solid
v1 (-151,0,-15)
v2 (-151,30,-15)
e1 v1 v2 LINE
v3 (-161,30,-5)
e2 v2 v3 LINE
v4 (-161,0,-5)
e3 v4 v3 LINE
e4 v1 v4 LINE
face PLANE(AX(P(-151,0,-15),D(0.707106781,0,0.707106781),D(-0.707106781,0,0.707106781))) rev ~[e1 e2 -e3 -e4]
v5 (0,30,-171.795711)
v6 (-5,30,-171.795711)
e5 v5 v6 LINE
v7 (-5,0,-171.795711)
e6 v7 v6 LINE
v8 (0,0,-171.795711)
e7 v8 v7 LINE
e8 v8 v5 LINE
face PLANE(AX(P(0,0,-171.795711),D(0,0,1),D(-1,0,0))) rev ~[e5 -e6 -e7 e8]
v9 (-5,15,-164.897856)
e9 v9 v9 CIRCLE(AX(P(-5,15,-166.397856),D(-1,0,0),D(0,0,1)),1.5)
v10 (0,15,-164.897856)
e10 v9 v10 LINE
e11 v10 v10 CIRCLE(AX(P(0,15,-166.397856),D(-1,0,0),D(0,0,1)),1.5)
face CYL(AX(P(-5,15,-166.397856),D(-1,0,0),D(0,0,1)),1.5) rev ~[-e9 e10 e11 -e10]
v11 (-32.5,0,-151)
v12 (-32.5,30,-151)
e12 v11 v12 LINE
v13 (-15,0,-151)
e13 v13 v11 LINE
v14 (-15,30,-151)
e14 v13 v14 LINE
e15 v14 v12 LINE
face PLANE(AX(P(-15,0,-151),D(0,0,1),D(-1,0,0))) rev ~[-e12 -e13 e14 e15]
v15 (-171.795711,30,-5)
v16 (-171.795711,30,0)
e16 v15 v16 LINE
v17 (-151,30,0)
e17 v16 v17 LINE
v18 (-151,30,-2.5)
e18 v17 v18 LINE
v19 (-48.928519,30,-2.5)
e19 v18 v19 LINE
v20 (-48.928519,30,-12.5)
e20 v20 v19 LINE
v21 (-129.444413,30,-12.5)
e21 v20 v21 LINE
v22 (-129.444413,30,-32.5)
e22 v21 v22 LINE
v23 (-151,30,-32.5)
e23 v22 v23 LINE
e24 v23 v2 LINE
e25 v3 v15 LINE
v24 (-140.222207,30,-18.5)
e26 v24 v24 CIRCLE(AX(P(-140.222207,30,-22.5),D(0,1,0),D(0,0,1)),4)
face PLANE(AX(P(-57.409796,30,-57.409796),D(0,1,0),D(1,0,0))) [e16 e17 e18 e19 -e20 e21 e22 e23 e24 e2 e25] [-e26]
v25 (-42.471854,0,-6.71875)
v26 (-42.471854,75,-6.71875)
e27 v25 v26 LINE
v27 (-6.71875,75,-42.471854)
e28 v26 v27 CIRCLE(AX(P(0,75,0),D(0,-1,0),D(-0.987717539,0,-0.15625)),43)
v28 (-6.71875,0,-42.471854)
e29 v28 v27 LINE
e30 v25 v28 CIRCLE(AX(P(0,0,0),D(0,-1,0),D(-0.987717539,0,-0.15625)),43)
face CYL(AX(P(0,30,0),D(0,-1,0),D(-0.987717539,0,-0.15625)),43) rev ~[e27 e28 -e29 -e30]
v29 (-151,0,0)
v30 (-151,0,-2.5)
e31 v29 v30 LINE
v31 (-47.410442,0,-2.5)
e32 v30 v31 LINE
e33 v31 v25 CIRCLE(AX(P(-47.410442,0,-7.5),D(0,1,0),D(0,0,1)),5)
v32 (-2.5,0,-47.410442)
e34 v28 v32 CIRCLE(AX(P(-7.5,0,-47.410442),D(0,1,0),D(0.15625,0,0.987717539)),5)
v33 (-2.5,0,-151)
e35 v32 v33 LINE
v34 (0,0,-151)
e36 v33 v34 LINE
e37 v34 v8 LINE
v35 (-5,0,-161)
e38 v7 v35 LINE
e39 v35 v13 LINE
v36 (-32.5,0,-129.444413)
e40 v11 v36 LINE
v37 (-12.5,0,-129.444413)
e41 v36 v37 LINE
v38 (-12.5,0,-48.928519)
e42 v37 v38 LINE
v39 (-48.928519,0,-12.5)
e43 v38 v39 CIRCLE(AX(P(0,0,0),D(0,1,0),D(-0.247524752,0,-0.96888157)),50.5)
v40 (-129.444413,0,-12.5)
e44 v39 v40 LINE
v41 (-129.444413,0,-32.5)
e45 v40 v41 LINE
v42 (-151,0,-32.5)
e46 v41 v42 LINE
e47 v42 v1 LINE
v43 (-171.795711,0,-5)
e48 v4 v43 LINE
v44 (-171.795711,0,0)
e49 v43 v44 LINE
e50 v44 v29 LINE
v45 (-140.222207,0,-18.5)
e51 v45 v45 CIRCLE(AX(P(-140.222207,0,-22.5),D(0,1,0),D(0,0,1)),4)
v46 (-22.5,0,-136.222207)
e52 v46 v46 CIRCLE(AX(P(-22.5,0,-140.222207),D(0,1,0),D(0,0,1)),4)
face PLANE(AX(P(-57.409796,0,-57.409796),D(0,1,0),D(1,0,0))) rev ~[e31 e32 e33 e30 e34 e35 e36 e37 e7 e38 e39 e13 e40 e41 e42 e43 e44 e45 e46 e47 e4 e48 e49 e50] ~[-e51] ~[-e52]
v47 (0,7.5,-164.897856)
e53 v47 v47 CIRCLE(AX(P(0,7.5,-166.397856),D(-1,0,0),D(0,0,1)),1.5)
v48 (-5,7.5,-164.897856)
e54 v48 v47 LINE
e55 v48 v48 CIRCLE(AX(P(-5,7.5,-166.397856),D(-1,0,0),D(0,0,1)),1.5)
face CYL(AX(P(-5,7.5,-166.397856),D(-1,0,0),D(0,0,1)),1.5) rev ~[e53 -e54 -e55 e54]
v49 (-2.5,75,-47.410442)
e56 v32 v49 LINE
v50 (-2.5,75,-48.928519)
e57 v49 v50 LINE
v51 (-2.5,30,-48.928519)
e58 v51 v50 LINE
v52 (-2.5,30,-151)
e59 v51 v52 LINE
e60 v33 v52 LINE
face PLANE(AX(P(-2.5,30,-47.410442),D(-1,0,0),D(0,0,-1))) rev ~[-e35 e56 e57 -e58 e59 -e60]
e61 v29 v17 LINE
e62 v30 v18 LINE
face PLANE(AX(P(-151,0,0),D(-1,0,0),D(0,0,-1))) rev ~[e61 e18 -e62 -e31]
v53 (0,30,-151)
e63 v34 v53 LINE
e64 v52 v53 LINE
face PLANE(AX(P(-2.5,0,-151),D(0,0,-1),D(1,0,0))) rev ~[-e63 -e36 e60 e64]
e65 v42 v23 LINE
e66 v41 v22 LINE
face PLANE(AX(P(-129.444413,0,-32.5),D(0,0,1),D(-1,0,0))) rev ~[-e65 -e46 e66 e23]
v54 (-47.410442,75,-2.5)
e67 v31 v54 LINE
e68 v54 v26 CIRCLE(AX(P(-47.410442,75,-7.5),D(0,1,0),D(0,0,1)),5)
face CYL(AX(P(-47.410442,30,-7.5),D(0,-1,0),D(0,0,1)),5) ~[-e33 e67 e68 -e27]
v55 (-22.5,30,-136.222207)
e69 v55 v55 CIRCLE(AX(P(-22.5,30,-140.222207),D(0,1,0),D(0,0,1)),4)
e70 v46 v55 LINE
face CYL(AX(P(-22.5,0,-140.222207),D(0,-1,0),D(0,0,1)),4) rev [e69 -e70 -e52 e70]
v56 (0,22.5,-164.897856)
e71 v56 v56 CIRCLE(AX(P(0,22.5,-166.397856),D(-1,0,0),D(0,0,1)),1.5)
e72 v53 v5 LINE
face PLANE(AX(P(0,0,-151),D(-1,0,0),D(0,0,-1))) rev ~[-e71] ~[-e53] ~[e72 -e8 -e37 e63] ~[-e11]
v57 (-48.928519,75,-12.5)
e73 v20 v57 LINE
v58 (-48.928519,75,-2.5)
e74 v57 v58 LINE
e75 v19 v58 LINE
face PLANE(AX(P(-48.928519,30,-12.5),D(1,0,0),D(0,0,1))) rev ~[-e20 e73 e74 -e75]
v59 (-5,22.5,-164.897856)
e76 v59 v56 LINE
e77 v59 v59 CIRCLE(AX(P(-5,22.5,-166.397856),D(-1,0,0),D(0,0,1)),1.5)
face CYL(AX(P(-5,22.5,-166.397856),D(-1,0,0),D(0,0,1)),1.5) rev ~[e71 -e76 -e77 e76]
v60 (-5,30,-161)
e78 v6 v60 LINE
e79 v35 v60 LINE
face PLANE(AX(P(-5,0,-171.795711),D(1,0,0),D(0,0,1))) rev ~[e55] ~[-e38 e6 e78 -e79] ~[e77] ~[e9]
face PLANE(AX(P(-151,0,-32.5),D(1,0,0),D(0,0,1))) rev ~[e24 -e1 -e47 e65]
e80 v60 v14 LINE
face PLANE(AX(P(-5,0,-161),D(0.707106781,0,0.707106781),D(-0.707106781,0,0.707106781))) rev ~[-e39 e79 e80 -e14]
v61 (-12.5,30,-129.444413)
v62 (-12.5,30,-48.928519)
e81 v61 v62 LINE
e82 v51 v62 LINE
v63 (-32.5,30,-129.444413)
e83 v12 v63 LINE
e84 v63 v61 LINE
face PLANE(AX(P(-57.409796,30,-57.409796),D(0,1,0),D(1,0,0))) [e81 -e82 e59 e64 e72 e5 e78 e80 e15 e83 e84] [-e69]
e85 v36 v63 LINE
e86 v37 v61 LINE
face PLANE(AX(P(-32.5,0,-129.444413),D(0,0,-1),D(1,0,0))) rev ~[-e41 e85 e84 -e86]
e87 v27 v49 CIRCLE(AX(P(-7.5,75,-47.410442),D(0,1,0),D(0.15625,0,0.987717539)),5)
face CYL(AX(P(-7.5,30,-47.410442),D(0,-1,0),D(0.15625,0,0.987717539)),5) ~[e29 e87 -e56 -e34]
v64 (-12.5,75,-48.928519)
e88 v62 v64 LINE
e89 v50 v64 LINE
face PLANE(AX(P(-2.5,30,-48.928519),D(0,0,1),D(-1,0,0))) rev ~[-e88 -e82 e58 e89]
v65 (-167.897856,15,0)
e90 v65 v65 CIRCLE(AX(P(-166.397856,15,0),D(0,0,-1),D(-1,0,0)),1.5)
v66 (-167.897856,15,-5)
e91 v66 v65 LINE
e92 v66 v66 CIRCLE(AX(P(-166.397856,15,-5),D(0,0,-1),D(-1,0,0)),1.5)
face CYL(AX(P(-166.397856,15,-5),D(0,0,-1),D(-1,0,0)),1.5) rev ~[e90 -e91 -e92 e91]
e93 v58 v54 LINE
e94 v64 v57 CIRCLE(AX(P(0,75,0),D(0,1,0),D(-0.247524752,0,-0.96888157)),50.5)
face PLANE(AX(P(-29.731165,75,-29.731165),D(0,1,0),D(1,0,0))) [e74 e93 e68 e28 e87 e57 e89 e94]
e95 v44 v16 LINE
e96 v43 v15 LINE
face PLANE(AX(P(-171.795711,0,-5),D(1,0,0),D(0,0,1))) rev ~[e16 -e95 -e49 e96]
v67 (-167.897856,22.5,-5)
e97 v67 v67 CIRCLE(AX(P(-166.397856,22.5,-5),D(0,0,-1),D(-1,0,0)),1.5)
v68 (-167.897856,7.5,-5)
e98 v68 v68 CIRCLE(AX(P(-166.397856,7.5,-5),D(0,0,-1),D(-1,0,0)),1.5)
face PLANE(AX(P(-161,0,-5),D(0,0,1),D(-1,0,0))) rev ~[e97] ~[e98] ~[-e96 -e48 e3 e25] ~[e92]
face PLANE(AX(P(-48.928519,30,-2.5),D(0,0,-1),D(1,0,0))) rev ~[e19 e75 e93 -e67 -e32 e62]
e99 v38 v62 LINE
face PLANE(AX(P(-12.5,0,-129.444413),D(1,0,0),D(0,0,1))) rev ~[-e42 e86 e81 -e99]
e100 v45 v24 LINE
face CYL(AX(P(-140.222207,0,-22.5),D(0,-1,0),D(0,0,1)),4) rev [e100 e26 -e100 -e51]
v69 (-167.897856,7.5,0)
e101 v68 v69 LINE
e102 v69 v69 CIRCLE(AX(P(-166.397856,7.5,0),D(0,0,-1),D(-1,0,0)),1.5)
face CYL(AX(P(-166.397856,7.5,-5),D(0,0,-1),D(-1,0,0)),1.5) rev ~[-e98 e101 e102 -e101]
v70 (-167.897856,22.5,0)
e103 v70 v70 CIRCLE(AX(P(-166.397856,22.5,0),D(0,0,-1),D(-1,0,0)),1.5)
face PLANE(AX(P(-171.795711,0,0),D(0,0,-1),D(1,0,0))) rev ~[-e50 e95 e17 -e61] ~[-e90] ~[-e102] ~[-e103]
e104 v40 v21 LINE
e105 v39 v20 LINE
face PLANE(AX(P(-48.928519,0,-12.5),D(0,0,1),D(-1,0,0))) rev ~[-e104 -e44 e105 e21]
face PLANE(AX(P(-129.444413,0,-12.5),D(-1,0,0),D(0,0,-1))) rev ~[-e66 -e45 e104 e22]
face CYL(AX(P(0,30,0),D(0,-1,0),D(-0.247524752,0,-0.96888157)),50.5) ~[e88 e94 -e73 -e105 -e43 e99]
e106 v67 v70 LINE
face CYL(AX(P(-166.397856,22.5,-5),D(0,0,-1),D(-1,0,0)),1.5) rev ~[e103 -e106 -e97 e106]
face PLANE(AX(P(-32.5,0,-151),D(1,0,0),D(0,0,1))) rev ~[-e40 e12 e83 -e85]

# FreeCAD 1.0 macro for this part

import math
import FreeCAD as App
import Part
import Sketcher
from FreeCAD import Vector

doc = App.newDocument("Part")
body = doc.addObject("PartDesign::Body", "Body")

sketch1 = doc.addObject("Sketcher::SketchObject", "Sketch")
body.addObject(sketch1)
sketch1.AttachmentSupport = (doc.XZ_Plane, [""])
sketch1.MapMode = "FlatFace"
sketch1.addGeometry([
    Part.LineSegment(Vector(-2.5, -47.4, 0), Vector(-2.5, -151, 0)),
    Part.LineSegment(Vector(-2.5, -151, 0), Vector(0, -151, 0)),
    Part.LineSegment(Vector(0, -151, 0), Vector(0, -171.8, 0)),
    Part.LineSegment(Vector(0, -171.8, 0), Vector(-5, -171.8, 0)),
    Part.LineSegment(Vector(-5, -171.8, 0), Vector(-5, -161, 0)),
    Part.LineSegment(Vector(-5, -161, 0), Vector(-15, -151, 0)),
    Part.LineSegment(Vector(-15, -151, 0), Vector(-32.5, -151, 0)),
    Part.LineSegment(Vector(-32.5, -151, 0), Vector(-32.5, -129.4, 0)),
    Part.LineSegment(Vector(-32.5, -129.4, 0), Vector(-12.5, -129.4, 0)),
    Part.LineSegment(Vector(-12.5, -129.4, 0), Vector(-12.5, -48.9, 0)),
    Part.ArcOfCircle(Part.Circle(Vector(0, 0, 0), Vector(0, 0, 1), 50.5), math.radians(-166), math.radians(-104)),
    Part.LineSegment(Vector(-48.9, -12.5, 0), Vector(-129.4, -12.5, 0)),
    Part.LineSegment(Vector(-129.4, -12.5, 0), Vector(-129.4, -32.5, 0)),
    Part.LineSegment(Vector(-129.4, -32.5, 0), Vector(-151, -32.5, 0)),
    Part.LineSegment(Vector(-151, -32.5, 0), Vector(-151, -15, 0)),
    Part.LineSegment(Vector(-151, -15, 0), Vector(-161, -5, 0)),
    Part.LineSegment(Vector(-161, -5, 0), Vector(-171.8, -5, 0)),
    Part.LineSegment(Vector(-171.8, -5, 0), Vector(-171.8, 0, 0)),
    Part.LineSegment(Vector(-171.8, 0, 0), Vector(-151, 0, 0)),
    Part.LineSegment(Vector(-151, 0, 0), Vector(-151, -2.5, 0)),
    Part.LineSegment(Vector(-151, -2.5, 0), Vector(-47.4, -2.5, 0)),
    Part.ArcOfCircle(Part.Circle(Vector(-47.4, -7.5, 0), Vector(0, 0, 1), 5), math.radians(9), math.radians(90)),
    Part.ArcOfCircle(Part.Circle(Vector(0, 0, 0), Vector(0, 0, 1), 43), math.radians(-171), math.radians(-99)),
    Part.ArcOfCircle(Part.Circle(Vector(-7.5, -47.4, 0), Vector(0, 0, 1), 5), math.radians(0), math.radians(81)),
    Part.Circle(Vector(-140.2, -22.5, 0), Vector(0, 0, 1), 4),
    Part.Circle(Vector(-22.5, -140.2, 0), Vector(0, 0, 1), 4),
], False)
sketch1.addConstraint([
    Sketcher.Constraint("Coincident", 0, 2, 1, 1),
    Sketcher.Constraint("Coincident", 1, 2, 2, 1),
    Sketcher.Constraint("Coincident", 2, 2, 3, 1),
    Sketcher.Constraint("Coincident", 3, 2, 4, 1),
    Sketcher.Constraint("Coincident", 4, 2, 5, 1),
    Sketcher.Constraint("Coincident", 5, 2, 6, 1),
    Sketcher.Constraint("Coincident", 6, 2, 7, 1),
    Sketcher.Constraint("Coincident", 7, 2, 8, 1),
    Sketcher.Constraint("Coincident", 8, 2, 9, 1),
    Sketcher.Constraint("Coincident", 9, 2, 10, 2),
    Sketcher.Constraint("Coincident", 10, 1, 11, 1),
    Sketcher.Constraint("Coincident", 11, 2, 12, 1),
    Sketcher.Constraint("Coincident", 12, 2, 13, 1),
    Sketcher.Constraint("Coincident", 13, 2, 14, 1),
    Sketcher.Constraint("Coincident", 14, 2, 15, 1),
    Sketcher.Constraint("Coincident", 15, 2, 16, 1),
    Sketcher.Constraint("Coincident", 16, 2, 17, 1),
    Sketcher.Constraint("Coincident", 17, 2, 18, 1),
    Sketcher.Constraint("Coincident", 18, 2, 19, 1),
    Sketcher.Constraint("Coincident", 19, 2, 20, 1),
    Sketcher.Constraint("Tangent", 20, 2, 21, 2),
    Sketcher.Constraint("Tangent", 21, 1, 22, 1),
    Sketcher.Constraint("Tangent", 22, 2, 23, 2),
    Sketcher.Constraint("Tangent", 23, 1, 0, 1),
    Sketcher.Constraint("Vertical", 0),
    Sketcher.Constraint("Horizontal", 1),
    Sketcher.Constraint("Vertical", 2),
    Sketcher.Constraint("Horizontal", 3),
    Sketcher.Constraint("Vertical", 4),
    Sketcher.Constraint("Horizontal", 6),
    Sketcher.Constraint("Vertical", 7),
    Sketcher.Constraint("Horizontal", 8),
    Sketcher.Constraint("Vertical", 9),
    Sketcher.Constraint("Horizontal", 11),
    Sketcher.Constraint("Vertical", 12),
    Sketcher.Constraint("Horizontal", 13),
    Sketcher.Constraint("Vertical", 14),
    Sketcher.Constraint("Horizontal", 16),
    Sketcher.Constraint("Vertical", 17),
    Sketcher.Constraint("Horizontal", 18),
    Sketcher.Constraint("Vertical", 19),
    Sketcher.Constraint("Horizontal", 20),
    Sketcher.Constraint("Coincident", 10, 3, -1, 1),
    Sketcher.Constraint("Coincident", 22, 3, -1, 1),
    Sketcher.Constraint("Equal", 21, 23),
    Sketcher.Constraint("Equal", 24, 25),
    Sketcher.Constraint("PointOnObject", 1, 2, -2),
    Sketcher.Constraint("PointOnObject", 17, 2, -1),
    Sketcher.Constraint("Parallel", 5, 15),
    Sketcher.Constraint("Horizontal", 1, 2, 5, 2),
    Sketcher.Constraint("Vertical", 14, 2, 18, 2),
    Sketcher.Constraint("Equal", 20, 0),
    Sketcher.Constraint("Equal", 18, 2),
    Sketcher.Constraint("Equal", 16, 4),
    Sketcher.Constraint("Equal", 13, 7),
    Sketcher.Constraint("Equal", 11, 9),
    Sketcher.Constraint("Equal", 8, 12),
    Sketcher.Constraint("Equal", 6, 14),
    Sketcher.Constraint("Equal", 3, 17),
    Sketcher.Constraint("Equal", 1, 19),
    Sketcher.Constraint("Diameter", 24, 8.0),
    Sketcher.Constraint("Radius", 21, 5.0),
    Sketcher.Constraint("Radius", 22, 43.0),
    Sketcher.Constraint("Radius", 10, 50.5),
    Sketcher.Constraint("DistanceX", 3, 2, 3, 1, 5.0),
    Sketcher.Constraint("DistanceX", 8, 1, 8, 2, 20.0),
    Sketcher.Constraint("DistanceX", 1, 1, 1, 2, 2.5),
    Sketcher.Constraint("DistanceX", 6, 2, 6, 1, 17.5),
    Sketcher.Constraint("DistanceY", 0, 2, -1, 1, 151.0),
    Sketcher.Constraint("DistanceY", 4, 2, -1, 1, 161.0),
    Sketcher.Constraint("DistanceY", 24, 3, 21, 3, 15.0),
    Sketcher.Constraint("DistanceX", 25, 3, 23, 3, 15.0),
    Sketcher.Constraint("DistanceX", 16, 2, 16, 1, 10.795711),
    Sketcher.Constraint("DistanceX", 16, 2, 11, 2, 42.351298),
    Sketcher.Constraint("DistanceX", 24, 3, -1, 1, 140.222207),
    Sketcher.Constraint("DistanceY", 25, 3, -1, 1, 140.222207),
])
pad1 = doc.addObject("PartDesign::Pad", "Pad")
body.addObject(pad1)
pad1.Profile = sketch1
pad1.Length = 30
pad1.Reversed = True

sketch2 = doc.addObject("Sketcher::SketchObject", "Sketch001")
body.addObject(sketch2)
sketch2.AttachmentSupport = (doc.YZ_Plane, [""])
sketch2.MapMode = "FlatFace"
sketch2.AttachmentOffset = App.Placement(Vector(0, 0, -5), App.Rotation())
sketch2.addGeometry([
    Part.Circle(Vector(22.5, -166.4, 0), Vector(0, 0, 1), 1.5),
    Part.Circle(Vector(15, -166.4, 0), Vector(0, 0, 1), 1.5),
    Part.Circle(Vector(7.5, -166.4, 0), Vector(0, 0, 1), 1.5),
], False)
sketch2.addConstraint([
    Sketcher.Constraint("Equal", 0, 1),
    Sketcher.Constraint("Equal", 1, 2),
    Sketcher.Constraint("Horizontal", 0, 3, 1, 3),
    Sketcher.Constraint("Horizontal", 1, 3, 2, 3),
    Sketcher.Constraint("Diameter", 0, 3.0),
    Sketcher.Constraint("DistanceX", -1, 1, 1, 3, 15.0),
    Sketcher.Constraint("DistanceX", 2, 3, 0, 3, 15.0),
    Sketcher.Constraint("DistanceX", -1, 1, 0, 3, 22.5),
    Sketcher.Constraint("DistanceY", 0, 3, -1, 1, 166.397856),
])
pocket1 = doc.addObject("PartDesign::Pocket", "Pocket")
body.addObject(pocket1)
pocket1.Profile = sketch2
pocket1.Length = 10
pocket1.Reversed = True

sketch3 = doc.addObject("Sketcher::SketchObject", "Sketch002")
body.addObject(sketch3)
sketch3.AttachmentSupport = (doc.XY_Plane, [""])
sketch3.MapMode = "FlatFace"
sketch3.AttachmentOffset = App.Placement(Vector(0, 0, -5), App.Rotation())
sketch3.addGeometry([
    Part.Circle(Vector(-166.4, 22.5, 0), Vector(0, 0, 1), 1.5),
    Part.Circle(Vector(-166.4, 15, 0), Vector(0, 0, 1), 1.5),
    Part.Circle(Vector(-166.4, 7.5, 0), Vector(0, 0, 1), 1.5),
], False)
sketch3.addConstraint([
    Sketcher.Constraint("Equal", 0, 1),
    Sketcher.Constraint("Equal", 1, 2),
    Sketcher.Constraint("Vertical", 0, 3, 1, 3),
    Sketcher.Constraint("Vertical", 1, 3, 2, 3),
    Sketcher.Constraint("Diameter", 0, 3.0),
    Sketcher.Constraint("DistanceY", -1, 1, 1, 3, 15.0),
    Sketcher.Constraint("DistanceY", 2, 3, 0, 3, 15.0),
    Sketcher.Constraint("DistanceY", -1, 1, 0, 3, 22.5),
    Sketcher.Constraint("DistanceX", 0, 3, -1, 1, 166.397856),
])
pocket2 = doc.addObject("PartDesign::Pocket", "Pocket001")
body.addObject(pocket2)
pocket2.Profile = sketch3
pocket2.Length = 10
pocket2.Reversed = True

sketch4 = doc.addObject("Sketcher::SketchObject", "Sketch003")
body.addObject(sketch4)
sketch4.AttachmentSupport = (doc.XZ_Plane, [""])
sketch4.MapMode = "FlatFace"
sketch4.AttachmentOffset = App.Placement(Vector(0, 0, -30), App.Rotation())
sketch4.addGeometry([
    Part.LineSegment(Vector(-48.9, -12.5, 0), Vector(-48.9, -2.5, 0)),
    Part.LineSegment(Vector(-48.9, -2.5, 0), Vector(-47.4, -2.5, 0)),
    Part.ArcOfCircle(Part.Circle(Vector(-47.4, -7.5, 0), Vector(0, 0, 1), 5), math.radians(9), math.radians(90)),
    Part.ArcOfCircle(Part.Circle(Vector(0, 0, 0), Vector(0, 0, 1), 43), math.radians(-171), math.radians(-99)),
    Part.ArcOfCircle(Part.Circle(Vector(-7.5, -47.4, 0), Vector(0, 0, 1), 5), math.radians(0), math.radians(81)),
    Part.LineSegment(Vector(-2.5, -47.4, 0), Vector(-2.5, -48.9, 0)),
    Part.LineSegment(Vector(-2.5, -48.9, 0), Vector(-12.5, -48.9, 0)),
    Part.ArcOfCircle(Part.Circle(Vector(0, 0, 0), Vector(0, 0, 1), 50.5), math.radians(-166), math.radians(-104)),
], False)
sketch4.addConstraint([
    Sketcher.Constraint("Coincident", 0, 2, 1, 1),
    Sketcher.Constraint("Tangent", 1, 2, 2, 2),
    Sketcher.Constraint("Tangent", 2, 1, 3, 1),
    Sketcher.Constraint("Tangent", 3, 2, 4, 2),
    Sketcher.Constraint("Tangent", 4, 1, 5, 1),
    Sketcher.Constraint("Coincident", 5, 2, 6, 1),
    Sketcher.Constraint("Coincident", 6, 2, 7, 2),
    Sketcher.Constraint("Coincident", 7, 1, 0, 1),
    Sketcher.Constraint("Vertical", 0),
    Sketcher.Constraint("Horizontal", 1),
    Sketcher.Constraint("Vertical", 5),
    Sketcher.Constraint("Horizontal", 6),
    Sketcher.Constraint("Coincident", 3, 3, -1, 1),
    Sketcher.Constraint("Coincident", 7, 3, -1, 1),
    Sketcher.Constraint("Equal", 2, 4),
    Sketcher.Constraint("Equal", 6, 0),
    Sketcher.Constraint("Equal", 1, 5),
    Sketcher.Constraint("Radius", 2, 5.0),
    Sketcher.Constraint("Radius", 3, 43.0),
    Sketcher.Constraint("Radius", 7, 50.5),
    Sketcher.Constraint("DistanceX", 6, 2, 6, 1, 10.0),
    Sketcher.Constraint("DistanceY", 2, 3, -1, 1, 7.5),
])
pad2 = doc.addObject("PartDesign::Pad", "Pad001")
body.addObject(pad2)
pad2.Profile = sketch4
pad2.Length = 45
pad2.Reversed = True

doc.recompute()
